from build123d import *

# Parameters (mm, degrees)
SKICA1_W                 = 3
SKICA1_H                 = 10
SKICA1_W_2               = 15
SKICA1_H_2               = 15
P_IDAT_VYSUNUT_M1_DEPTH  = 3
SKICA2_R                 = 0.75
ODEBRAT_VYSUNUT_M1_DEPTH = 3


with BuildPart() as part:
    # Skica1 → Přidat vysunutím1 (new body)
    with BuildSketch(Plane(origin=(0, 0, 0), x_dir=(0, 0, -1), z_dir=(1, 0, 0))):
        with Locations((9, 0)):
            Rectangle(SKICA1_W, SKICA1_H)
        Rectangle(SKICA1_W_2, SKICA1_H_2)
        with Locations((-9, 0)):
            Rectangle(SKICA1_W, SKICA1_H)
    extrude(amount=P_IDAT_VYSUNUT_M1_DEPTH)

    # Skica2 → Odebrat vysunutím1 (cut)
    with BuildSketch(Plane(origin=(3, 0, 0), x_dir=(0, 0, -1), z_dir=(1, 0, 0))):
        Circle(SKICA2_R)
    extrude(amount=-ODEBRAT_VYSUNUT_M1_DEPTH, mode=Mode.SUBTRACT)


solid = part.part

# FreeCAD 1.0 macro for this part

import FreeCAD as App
import Part
import Sketcher

V = App.Vector

doc = App.newDocument("Part")
body = doc.addObject("PartDesign::Body", "Body")

sketch1 = body.newObject("Sketcher::SketchObject", "Sketch")
sketch1.AttachmentSupport = (doc.getObject("YZ_Plane"), [""])
sketch1.MapMode = "FlatFace"
sketch1.addGeometry([
    Part.LineSegment(V(-5, -7.5, 0), V(-5, -10.5, 0)),
    Part.LineSegment(V(-5, -10.5, 0), V(5, -10.5, 0)),
    Part.LineSegment(V(5, -10.5, 0), V(5, -7.5, 0)),
    Part.LineSegment(V(5, -7.5, 0), V(7.5, -7.5, 0)),
    Part.LineSegment(V(7.5, -7.5, 0), V(7.5, 7.5, 0)),
    Part.LineSegment(V(7.5, 7.5, 0), V(5, 7.5, 0)),
    Part.LineSegment(V(5, 7.5, 0), V(5, 10.5, 0)),
    Part.LineSegment(V(5, 10.5, 0), V(-5, 10.5, 0)),
    Part.LineSegment(V(-5, 10.5, 0), V(-5, 7.5, 0)),
    Part.LineSegment(V(-5, 7.5, 0), V(-7.5, 7.5, 0)),
    Part.LineSegment(V(-7.5, 7.5, 0), V(-7.5, -7.5, 0)),
    Part.LineSegment(V(-7.5, -7.5, 0), V(-5, -7.5, 0)),
], False)
sketch1.addConstraint([
    Sketcher.Constraint("Coincident", 0, 2, 1, 1),
    Sketcher.Constraint("Coincident", 1, 2, 2, 1),
    Sketcher.Constraint("Coincident", 2, 2, 3, 1),
    Sketcher.Constraint("Coincident", 3, 2, 4, 1),
    Sketcher.Constraint("Coincident", 4, 2, 5, 1),
    Sketcher.Constraint("Coincident", 5, 2, 6, 1),
    Sketcher.Constraint("Coincident", 6, 2, 7, 1),
    Sketcher.Constraint("Coincident", 7, 2, 8, 1),
    Sketcher.Constraint("Coincident", 8, 2, 9, 1),
    Sketcher.Constraint("Coincident", 9, 2, 10, 1),
    Sketcher.Constraint("Coincident", 10, 2, 11, 1),
    Sketcher.Constraint("Coincident", 11, 2, 0, 1),
    Sketcher.Constraint("Vertical", 0),
    Sketcher.Constraint("Horizontal", 1),
    Sketcher.Constraint("Vertical", 2),
    Sketcher.Constraint("Horizontal", 3),
    Sketcher.Constraint("Vertical", 4),
    Sketcher.Constraint("Horizontal", 5),
    Sketcher.Constraint("Vertical", 6),
    Sketcher.Constraint("Horizontal", 7),
    Sketcher.Constraint("Vertical", 8),
    Sketcher.Constraint("Horizontal", 9),
    Sketcher.Constraint("Vertical", 10),
    Sketcher.Constraint("Horizontal", 11),
    Sketcher.Constraint("Symmetric", 0, 2, 6, 2, -1, 1),
    Sketcher.Constraint("Symmetric", 2, 2, 8, 2, -1, 1),
    Sketcher.Constraint("Symmetric", 4, 2, 10, 2, -1, 1),
    Sketcher.Constraint("Symmetric", 5, 2, 8, 2, -2),
    Sketcher.Constraint("DistanceX", 1, 1, 1, 2, 10.0),
    Sketcher.Constraint("DistanceY", 0, 2, 0, 1, 3.0),
    Sketcher.Constraint("DistanceY", 4, 1, 4, 2, 15.0),
    Sketcher.Constraint("DistanceX", 3, 1, 3, 2, 2.5),
])
pad1 = body.newObject("PartDesign::Pad", "Pad")
pad1.Profile = sketch1
pad1.Length = 3

sketch2 = body.newObject("Sketcher::SketchObject", "Sketch001")
sketch2.AttachmentSupport = (doc.getObject("YZ_Plane"), [""])
sketch2.MapMode = "FlatFace"
sketch2.AttachmentOffset = App.Placement(V(0, 0, 3), App.Rotation())
sketch2.addGeometry(Part.Circle(V(0, 0, 0), V(0, 0, 1), 0.75), False)
sketch2.addConstraint([
    Sketcher.Constraint("Coincident", 0, 3, -1, 1),
    Sketcher.Constraint("Diameter", 0, 1.5),
])
pocket1 = body.newObject("PartDesign::Pocket", "Pocket")
pocket1.Profile = sketch2
pocket1.Length = 3

doc.recompute()
